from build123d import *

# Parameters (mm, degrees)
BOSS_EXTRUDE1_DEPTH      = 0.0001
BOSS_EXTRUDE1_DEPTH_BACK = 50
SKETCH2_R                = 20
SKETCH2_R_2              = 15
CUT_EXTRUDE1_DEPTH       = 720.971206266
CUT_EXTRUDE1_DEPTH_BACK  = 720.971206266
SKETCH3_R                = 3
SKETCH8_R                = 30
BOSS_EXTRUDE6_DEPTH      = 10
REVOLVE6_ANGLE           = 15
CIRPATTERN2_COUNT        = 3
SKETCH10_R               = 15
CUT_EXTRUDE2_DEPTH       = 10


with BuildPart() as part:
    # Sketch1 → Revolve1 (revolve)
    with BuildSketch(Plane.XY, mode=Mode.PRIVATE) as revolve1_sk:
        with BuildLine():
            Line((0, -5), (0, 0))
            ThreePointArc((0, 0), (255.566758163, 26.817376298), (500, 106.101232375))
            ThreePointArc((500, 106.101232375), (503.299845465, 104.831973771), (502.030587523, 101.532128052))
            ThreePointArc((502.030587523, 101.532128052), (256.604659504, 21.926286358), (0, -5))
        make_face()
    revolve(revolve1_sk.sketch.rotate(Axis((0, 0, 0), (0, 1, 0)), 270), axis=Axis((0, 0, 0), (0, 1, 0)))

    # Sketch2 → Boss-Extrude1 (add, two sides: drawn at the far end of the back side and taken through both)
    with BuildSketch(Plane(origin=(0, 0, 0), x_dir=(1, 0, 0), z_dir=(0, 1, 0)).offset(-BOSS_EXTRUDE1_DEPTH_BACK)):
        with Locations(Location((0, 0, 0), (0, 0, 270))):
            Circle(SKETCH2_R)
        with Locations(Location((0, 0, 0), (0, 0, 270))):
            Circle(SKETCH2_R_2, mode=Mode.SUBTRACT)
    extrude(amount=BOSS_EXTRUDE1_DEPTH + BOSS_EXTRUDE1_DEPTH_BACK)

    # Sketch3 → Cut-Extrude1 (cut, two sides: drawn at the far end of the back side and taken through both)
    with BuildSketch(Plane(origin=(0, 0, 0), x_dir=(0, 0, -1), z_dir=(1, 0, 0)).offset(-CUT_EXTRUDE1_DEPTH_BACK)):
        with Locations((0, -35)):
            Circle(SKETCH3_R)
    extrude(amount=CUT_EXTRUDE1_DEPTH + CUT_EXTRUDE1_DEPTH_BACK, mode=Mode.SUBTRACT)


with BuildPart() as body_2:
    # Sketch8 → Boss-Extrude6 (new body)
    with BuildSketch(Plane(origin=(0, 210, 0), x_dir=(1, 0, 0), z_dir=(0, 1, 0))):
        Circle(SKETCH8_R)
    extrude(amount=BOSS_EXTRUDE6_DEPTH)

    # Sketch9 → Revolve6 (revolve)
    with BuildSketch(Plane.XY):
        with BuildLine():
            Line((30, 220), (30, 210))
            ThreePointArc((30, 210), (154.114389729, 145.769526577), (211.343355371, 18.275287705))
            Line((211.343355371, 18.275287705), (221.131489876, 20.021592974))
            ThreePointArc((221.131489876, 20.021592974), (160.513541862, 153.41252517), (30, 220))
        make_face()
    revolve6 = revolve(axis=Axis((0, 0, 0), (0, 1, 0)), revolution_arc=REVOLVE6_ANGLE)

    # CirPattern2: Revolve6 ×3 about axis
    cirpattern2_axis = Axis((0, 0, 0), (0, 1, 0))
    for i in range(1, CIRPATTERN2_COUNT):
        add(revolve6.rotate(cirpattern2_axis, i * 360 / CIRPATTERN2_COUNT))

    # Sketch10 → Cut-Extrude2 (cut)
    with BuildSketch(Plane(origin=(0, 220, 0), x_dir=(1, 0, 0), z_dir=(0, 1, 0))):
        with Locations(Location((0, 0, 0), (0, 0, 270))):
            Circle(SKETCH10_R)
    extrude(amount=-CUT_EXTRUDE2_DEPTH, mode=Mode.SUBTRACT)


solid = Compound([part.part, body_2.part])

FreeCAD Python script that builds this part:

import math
import FreeCAD as App
import Part
import Sketcher
from FreeCAD import Vector

doc = App.newDocument("Part")
body = doc.addObject("PartDesign::Body", "Body")

sketch1 = body.newObject("Sketcher::SketchObject", "Sketch")
sketch1.AttachmentSupport = (doc.getObject("XY_Plane"), [""])
sketch1.MapMode = "FlatFace"
sketch1.addGeometry([
    Part.LineSegment(Vector(0, 0, 0), Vector(0, -5, 0)),
    Part.ArcOfCircle(Part.Circle(Vector(0, 1231.2, 0), Vector(0, 0, 1), 1236.2), math.radians(-90), math.radians(-66)),
    Part.ArcOfCircle(Part.Circle(Vector(501, 103.8, 0), Vector(0, 0, 1), 2.5), math.radians(-66), math.radians(114)),
    Part.ArcOfCircle(Part.Circle(Vector(0, 1231.2, 0), Vector(0, 0, 1), 1231.2), math.radians(-90), math.radians(-66)),
], False)
sketch1.addConstraint([
    Sketcher.Constraint("Coincident", 0, 2, 1, 1),
    Sketcher.Constraint("Tangent", 1, 2, 2, 1),
    Sketcher.Constraint("Tangent", 2, 2, 3, 2),
    Sketcher.Constraint("Coincident", 3, 1, 0, 1),
    Sketcher.Constraint("Vertical", 0),
    Sketcher.Constraint("Coincident", 3, 3, 1, 3),
    Sketcher.Constraint("PointOnObject", 1, 3, -2),
    Sketcher.Constraint("PointOnObject", 0, 2, -2),
    Sketcher.Constraint("Radius", 2, 2.5),
    Sketcher.Constraint("DistanceY", 0, 2, -1, 1, 5.0),
    Sketcher.Constraint("DistanceX", -1, 1, 2, 2, 500.0),
    Sketcher.Constraint("Radius", 1, 1236.170768),
])
revolution = body.newObject("PartDesign::Revolution", "Revolution")
revolution.Profile = sketch1
revolution.ReferenceAxis = (sketch1, ["V_Axis"])
revolution.Angle = 360

sketch2 = body.newObject("Sketcher::SketchObject", "Sketch001")
sketch2.AttachmentSupport = (doc.getObject("XZ_Plane"), [""])
sketch2.MapMode = "FlatFace"
sketch2.addGeometry([
    Part.Circle(Vector(0, 0, 0), Vector(0, 0, 1), 20),
    Part.Circle(Vector(0, 0, 0), Vector(0, 0, 1), 15),
], False)
sketch2.addConstraint([
    Sketcher.Constraint("Coincident", 0, 3, -1, 1),
    Sketcher.Constraint("Coincident", 1, 3, -1, 1),
    Sketcher.Constraint("Diameter", 0, 40.0),
    Sketcher.Constraint("Diameter", 1, 30.0),
])
pad1 = body.newObject("PartDesign::Pad", "Pad")
pad1.Profile = sketch2
pad1.Type = "TwoLengths"
pad1.Length = 0.0001
pad1.Length2 = 50
pad1.Reversed = True

sketch3 = body.newObject("Sketcher::SketchObject", "Sketch002")
sketch3.AttachmentSupport = (doc.getObject("YZ_Plane"), [""])
sketch3.MapMode = "FlatFace"
sketch3.addGeometry(Part.Circle(Vector(-35, 0, 0), Vector(0, 0, 1), 3), False)
sketch3.addConstraint([
    Sketcher.Constraint("PointOnObject", 0, 3, -1),
    Sketcher.Constraint("Diameter", 0, 6.0),
    Sketcher.Constraint("DistanceX", 0, 3, -1, 1, 35.0),
])
pocket1 = body.newObject("PartDesign::Pocket", "Pocket")
pocket1.Profile = sketch3
pocket1.Type = "ThroughAll"
pocket1.Midplane = True
body2 = doc.addObject("PartDesign::Body", "Body001")

sketch4 = body2.newObject("Sketcher::SketchObject", "Sketch003")
sketch4.AttachmentSupport = (doc.getObject("XZ_Plane001"), [""])
sketch4.MapMode = "FlatFace"
sketch4.AttachmentOffset = App.Placement(Vector(0, 0, -210), App.Rotation())
sketch4.addGeometry(Part.Circle(Vector(0, 0, 0), Vector(0, 0, 1), 30), False)
sketch4.addConstraint([
    Sketcher.Constraint("Coincident", 0, 3, -1, 1),
    Sketcher.Constraint("Diameter", 0, 60.0),
])
pad2 = body2.newObject("PartDesign::Pad", "Pad001")
pad2.Profile = sketch4
pad2.Length = 10
pad2.Reversed = True

sketch5 = body2.newObject("Sketcher::SketchObject", "Sketch004")
sketch5.AttachmentSupport = (doc.getObject("XY_Plane001"), [""])
sketch5.MapMode = "FlatFace"
sketch5.addGeometry([
    Part.LineSegment(Vector(30, 220, 0), Vector(30, 210, 0)),
    Part.ArcOfCircle(Part.Circle(Vector(0, 0, 0), Vector(0, 0, 1), 212), math.radians(5), math.radians(82)),
    Part.LineSegment(Vector(211, 18, 0), Vector(221, 20, 0)),
    Part.ArcOfCircle(Part.Circle(Vector(0, 0, 0), Vector(0, 0, 1), 222), math.radians(5), math.radians(82)),
], False)
sketch5.addConstraint([
    Sketcher.Constraint("Coincident", 0, 2, 1, 2),
    Sketcher.Constraint("Coincident", 1, 1, 2, 1),
    Sketcher.Constraint("Coincident", 2, 2, 3, 1),
    Sketcher.Constraint("Coincident", 3, 2, 0, 1),
    Sketcher.Constraint("Vertical", 0),
    Sketcher.Constraint("Coincident", 1, 3, -1, 1),
    Sketcher.Constraint("Coincident", 3, 3, -1, 1),
    Sketcher.Constraint("DistanceY", 0, 2, 0, 1, 10.0),
    Sketcher.Constraint("DistanceX", -1, 1, 0, 2, 30.0),
    Sketcher.Constraint("DistanceY", -1, 1, 0, 2, 210.0),
    Sketcher.Constraint("DistanceX", -1, 1, 2, 2, 221.13149),
    Sketcher.Constraint("Distance", 2, 9.942694),
])
revolution2 = body2.newObject("PartDesign::Revolution", "Revolution001")
revolution2.Profile = sketch5
revolution2.ReferenceAxis = (sketch5, ["V_Axis"])
revolution2.Angle = 15
doc.recompute()

polarpattern = body2.newObject("PartDesign::PolarPattern", "PolarPattern")
polarpattern.Originals = [revolution2]
polarpattern.Axis = (doc.getObject("Y_Axis001"), [""])
polarpattern.Angle = 360
polarpattern.Occurrences = 3
body2.Tip = polarpattern

sketch6 = body2.newObject("Sketcher::SketchObject", "Sketch005")
sketch6.AttachmentSupport = (doc.getObject("XZ_Plane001"), [""])
sketch6.MapMode = "FlatFace"
sketch6.AttachmentOffset = App.Placement(Vector(0, 0, -220), App.Rotation())
sketch6.addGeometry(Part.Circle(Vector(0, 0, 0), Vector(0, 0, 1), 15), False)
sketch6.addConstraint([
    Sketcher.Constraint("Coincident", 0, 3, -1, 1),
    Sketcher.Constraint("Diameter", 0, 30.0),
])
pocket2 = body2.newObject("PartDesign::Pocket", "Pocket001")
pocket2.Profile = sketch6
pocket2.Length = 10
pocket2.Reversed = True

doc.recompute()
